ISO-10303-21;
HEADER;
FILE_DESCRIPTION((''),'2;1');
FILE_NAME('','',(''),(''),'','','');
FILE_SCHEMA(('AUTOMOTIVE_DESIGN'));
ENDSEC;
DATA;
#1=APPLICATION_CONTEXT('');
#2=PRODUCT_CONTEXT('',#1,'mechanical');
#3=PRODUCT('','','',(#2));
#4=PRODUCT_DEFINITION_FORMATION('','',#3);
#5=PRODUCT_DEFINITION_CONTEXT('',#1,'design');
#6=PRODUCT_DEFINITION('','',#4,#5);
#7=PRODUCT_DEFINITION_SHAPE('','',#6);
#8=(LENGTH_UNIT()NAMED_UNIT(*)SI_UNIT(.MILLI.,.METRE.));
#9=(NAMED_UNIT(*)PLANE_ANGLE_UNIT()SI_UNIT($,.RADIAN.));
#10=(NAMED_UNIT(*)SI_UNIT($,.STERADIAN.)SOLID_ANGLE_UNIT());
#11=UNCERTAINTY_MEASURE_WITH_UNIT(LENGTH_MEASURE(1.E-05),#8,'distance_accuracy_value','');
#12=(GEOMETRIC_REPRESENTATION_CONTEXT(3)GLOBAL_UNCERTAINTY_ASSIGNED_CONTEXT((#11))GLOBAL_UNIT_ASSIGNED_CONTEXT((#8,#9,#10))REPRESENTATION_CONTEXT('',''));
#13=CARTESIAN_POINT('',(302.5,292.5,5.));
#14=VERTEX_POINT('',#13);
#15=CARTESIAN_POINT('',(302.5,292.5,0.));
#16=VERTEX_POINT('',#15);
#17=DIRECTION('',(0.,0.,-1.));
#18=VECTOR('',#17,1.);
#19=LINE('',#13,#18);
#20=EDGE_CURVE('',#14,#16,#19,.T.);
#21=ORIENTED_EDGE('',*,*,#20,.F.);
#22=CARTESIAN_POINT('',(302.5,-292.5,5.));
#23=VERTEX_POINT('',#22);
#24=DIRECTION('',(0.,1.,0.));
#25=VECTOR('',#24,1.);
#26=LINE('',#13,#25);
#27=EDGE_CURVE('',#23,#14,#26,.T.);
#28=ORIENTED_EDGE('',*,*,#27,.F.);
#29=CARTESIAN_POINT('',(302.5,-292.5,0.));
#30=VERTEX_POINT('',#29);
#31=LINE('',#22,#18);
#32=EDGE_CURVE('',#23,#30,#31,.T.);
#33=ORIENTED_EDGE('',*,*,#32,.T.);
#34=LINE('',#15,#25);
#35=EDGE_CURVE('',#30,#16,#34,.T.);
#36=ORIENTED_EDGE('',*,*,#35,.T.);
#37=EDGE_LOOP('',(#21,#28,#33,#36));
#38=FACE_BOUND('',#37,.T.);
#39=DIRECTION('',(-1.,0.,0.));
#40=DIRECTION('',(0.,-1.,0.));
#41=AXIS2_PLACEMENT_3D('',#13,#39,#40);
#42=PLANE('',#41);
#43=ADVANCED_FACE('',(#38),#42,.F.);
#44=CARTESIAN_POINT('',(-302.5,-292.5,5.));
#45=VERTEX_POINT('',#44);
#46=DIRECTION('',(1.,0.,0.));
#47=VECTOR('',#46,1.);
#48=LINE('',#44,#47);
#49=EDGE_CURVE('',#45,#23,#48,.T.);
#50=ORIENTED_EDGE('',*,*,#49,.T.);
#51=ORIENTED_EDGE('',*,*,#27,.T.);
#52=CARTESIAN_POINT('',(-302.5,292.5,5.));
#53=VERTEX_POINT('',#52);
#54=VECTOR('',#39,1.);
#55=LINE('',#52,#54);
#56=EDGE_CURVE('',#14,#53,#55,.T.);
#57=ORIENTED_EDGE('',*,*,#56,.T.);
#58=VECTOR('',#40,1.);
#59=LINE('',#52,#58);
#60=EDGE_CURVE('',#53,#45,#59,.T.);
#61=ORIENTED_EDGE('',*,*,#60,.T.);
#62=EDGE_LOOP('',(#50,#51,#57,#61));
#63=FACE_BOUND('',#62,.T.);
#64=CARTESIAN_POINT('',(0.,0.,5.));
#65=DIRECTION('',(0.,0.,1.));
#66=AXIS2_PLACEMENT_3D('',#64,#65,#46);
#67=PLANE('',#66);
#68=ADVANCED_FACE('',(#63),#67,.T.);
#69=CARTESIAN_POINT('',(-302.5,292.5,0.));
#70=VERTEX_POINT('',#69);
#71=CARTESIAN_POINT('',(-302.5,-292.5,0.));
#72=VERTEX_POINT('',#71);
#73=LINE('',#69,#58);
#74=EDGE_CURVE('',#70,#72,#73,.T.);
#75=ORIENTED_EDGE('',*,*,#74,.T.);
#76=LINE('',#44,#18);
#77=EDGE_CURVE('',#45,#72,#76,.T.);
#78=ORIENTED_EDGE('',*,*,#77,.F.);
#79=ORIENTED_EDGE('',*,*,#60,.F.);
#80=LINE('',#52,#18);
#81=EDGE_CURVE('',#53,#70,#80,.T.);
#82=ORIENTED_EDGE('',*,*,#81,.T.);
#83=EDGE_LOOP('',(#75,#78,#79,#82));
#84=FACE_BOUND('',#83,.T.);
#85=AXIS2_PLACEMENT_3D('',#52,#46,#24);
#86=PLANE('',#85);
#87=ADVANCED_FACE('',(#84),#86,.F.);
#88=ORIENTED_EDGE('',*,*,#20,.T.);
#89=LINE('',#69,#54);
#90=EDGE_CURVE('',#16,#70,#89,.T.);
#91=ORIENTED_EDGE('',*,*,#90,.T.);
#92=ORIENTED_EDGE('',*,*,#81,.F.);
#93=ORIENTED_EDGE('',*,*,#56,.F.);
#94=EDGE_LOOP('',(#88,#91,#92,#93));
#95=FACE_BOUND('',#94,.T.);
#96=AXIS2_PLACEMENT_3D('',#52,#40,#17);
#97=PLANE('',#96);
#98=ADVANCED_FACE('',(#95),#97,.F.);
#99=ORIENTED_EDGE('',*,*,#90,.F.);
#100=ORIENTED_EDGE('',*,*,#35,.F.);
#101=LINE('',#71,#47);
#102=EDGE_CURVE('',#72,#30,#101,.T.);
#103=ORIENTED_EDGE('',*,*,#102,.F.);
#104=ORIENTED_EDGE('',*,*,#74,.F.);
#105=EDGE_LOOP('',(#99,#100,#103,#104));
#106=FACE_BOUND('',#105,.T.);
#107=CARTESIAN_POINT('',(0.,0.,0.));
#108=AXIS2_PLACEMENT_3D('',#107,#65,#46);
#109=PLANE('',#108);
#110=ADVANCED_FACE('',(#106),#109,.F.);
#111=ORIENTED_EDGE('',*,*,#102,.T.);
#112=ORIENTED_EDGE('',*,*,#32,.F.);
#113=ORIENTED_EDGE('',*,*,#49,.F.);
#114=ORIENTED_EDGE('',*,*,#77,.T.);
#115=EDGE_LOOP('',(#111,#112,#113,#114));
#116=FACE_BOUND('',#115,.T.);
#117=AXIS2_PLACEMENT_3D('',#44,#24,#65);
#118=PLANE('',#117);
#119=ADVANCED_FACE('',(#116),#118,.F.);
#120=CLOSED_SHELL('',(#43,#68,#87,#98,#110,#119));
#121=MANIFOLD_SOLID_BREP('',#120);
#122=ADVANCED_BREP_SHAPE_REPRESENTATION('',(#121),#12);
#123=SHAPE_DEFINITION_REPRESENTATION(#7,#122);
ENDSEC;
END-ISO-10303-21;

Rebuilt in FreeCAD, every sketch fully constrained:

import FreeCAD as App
import Part
import Sketcher

V = App.Vector
Q = App.Units.Quantity

doc = App.newDocument("Part")
body = doc.addObject("PartDesign::Body", "Body")

# Sketch on XY plane
sketch1 = body.newObject("Sketcher::SketchObject", "Sketch")
sketch1.AttachmentSupport = (doc.getObject("XY_Plane"), [""])
sketch1.MapMode = "FlatFace"
sketch1.addGeometry(Part.LineSegment(V(-302, 292, 0), V(-302, -292, 0)), False)
sketch1.addGeometry(Part.LineSegment(V(-302, -292, 0), V(302, -292, 0)), False)
sketch1.addGeometry(Part.LineSegment(V(302, -292, 0), V(302, 292, 0)), False)
sketch1.addGeometry(Part.LineSegment(V(302, 292, 0), V(-302, 292, 0)), False)
sketch1.addConstraint(Sketcher.Constraint("Coincident", 0, 2, 1, 1))
sketch1.addConstraint(Sketcher.Constraint("Coincident", 1, 2, 2, 1))
sketch1.addConstraint(Sketcher.Constraint("Coincident", 2, 2, 3, 1))
sketch1.addConstraint(Sketcher.Constraint("Coincident", 3, 2, 0, 1))
sketch1.addConstraint(Sketcher.Constraint("Vertical", 0))
sketch1.addConstraint(Sketcher.Constraint("Horizontal", 1))
sketch1.addConstraint(Sketcher.Constraint("Vertical", 2))
sketch1.addConstraint(Sketcher.Constraint("Horizontal", 3))
sketch1.addConstraint(Sketcher.Constraint("Symmetric", 0, 2, 2, 2, -1, 1))
sketch1.addConstraint(Sketcher.Constraint("DistanceX", 1, 1, 1, 2, Q("605 mm")))
sketch1.addConstraint(Sketcher.Constraint("DistanceY", 0, 2, 0, 1, Q("585 mm")))
pad1 = body.newObject("PartDesign::Pad", "Pad")
pad1.Profile = sketch1
pad1.Length = 5

doc.recompute()
